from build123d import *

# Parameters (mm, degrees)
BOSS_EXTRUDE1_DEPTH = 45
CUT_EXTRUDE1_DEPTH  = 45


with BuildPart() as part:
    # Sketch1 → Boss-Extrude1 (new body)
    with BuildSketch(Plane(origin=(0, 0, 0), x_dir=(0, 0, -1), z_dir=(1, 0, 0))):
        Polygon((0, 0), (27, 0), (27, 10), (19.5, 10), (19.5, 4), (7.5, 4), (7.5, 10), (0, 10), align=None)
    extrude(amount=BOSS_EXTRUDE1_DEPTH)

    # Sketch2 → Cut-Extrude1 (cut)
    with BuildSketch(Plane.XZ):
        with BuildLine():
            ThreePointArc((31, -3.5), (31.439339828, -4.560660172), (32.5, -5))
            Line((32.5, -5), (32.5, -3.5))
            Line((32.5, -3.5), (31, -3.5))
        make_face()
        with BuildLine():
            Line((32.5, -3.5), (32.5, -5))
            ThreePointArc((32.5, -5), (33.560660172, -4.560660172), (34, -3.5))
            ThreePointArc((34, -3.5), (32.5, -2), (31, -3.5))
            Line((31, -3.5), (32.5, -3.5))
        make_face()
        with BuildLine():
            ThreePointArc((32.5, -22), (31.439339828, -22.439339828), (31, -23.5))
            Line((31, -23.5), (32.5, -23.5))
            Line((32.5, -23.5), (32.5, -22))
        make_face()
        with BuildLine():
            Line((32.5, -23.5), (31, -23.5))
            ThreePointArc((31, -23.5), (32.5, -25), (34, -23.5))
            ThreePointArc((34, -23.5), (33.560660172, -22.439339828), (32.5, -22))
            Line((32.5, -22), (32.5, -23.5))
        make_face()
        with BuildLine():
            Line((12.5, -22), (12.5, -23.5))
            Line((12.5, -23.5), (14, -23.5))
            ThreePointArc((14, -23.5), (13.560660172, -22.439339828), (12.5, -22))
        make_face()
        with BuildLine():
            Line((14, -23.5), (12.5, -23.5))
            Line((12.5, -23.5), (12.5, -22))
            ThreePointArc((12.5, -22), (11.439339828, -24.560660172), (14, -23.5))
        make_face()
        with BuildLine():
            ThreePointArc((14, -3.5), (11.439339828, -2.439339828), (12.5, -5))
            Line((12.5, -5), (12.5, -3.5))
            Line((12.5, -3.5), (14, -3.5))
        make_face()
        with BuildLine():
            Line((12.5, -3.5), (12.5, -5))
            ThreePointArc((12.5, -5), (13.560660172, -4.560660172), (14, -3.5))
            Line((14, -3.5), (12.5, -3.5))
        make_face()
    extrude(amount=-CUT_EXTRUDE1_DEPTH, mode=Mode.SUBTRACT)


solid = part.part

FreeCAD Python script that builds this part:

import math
import FreeCAD as App
import Part
import Sketcher
from FreeCAD import Vector
Q = App.Units.Quantity

doc = App.newDocument("Part")
params = doc.addObject("Spreadsheet::Sheet", "Params")
for row, (alias, value) in enumerate([
    ("sketch1_width", "10 mm"),
    ("sketch1_width2", "6 mm"),
    ("sketch1_height", "27 mm"),
    ("sketch1_height2", "12 mm"),
    ("pad1_length", "45 mm"),
    ("sketch2_radius", "1.5 mm"),
    ("pocket1_length", "45 mm"),
], start=1):
    params.set(f"A{row}", alias)
    params.set(f"B{row}", "=" + value)
    params.setAlias(f"B{row}", alias)

body = doc.addObject("PartDesign::Body", "Body")

# Sketch on YZ plane
sketch1 = body.newObject("Sketcher::SketchObject", "Sketch")
sketch1.AttachmentSupport = (doc.getObject("YZ_Plane"), [""])
sketch1.MapMode = "FlatFace"
sketch1.addGeometry(Part.LineSegment(Vector(0, 0, 0), Vector(0, -27, 0)), False)
sketch1.addGeometry(Part.LineSegment(Vector(0, -27, 0), Vector(10, -27, 0)), False)
sketch1.addGeometry(Part.LineSegment(Vector(10, -27, 0), Vector(10, -20, 0)), False)
sketch1.addGeometry(Part.LineSegment(Vector(10, -20, 0), Vector(4, -20, 0)), False)
sketch1.addGeometry(Part.LineSegment(Vector(4, -20, 0), Vector(4, -8, 0)), False)
sketch1.addGeometry(Part.LineSegment(Vector(4, -8, 0), Vector(10, -8, 0)), False)
sketch1.addGeometry(Part.LineSegment(Vector(10, -8, 0), Vector(10, 0, 0)), False)
sketch1.addGeometry(Part.LineSegment(Vector(10, 0, 0), Vector(0, 0, 0)), False)
sketch1.addConstraint(Sketcher.Constraint("Coincident", 0, 2, 1, 1))
sketch1.addConstraint(Sketcher.Constraint("Coincident", 1, 2, 2, 1))
sketch1.addConstraint(Sketcher.Constraint("Coincident", 2, 2, 3, 1))
sketch1.addConstraint(Sketcher.Constraint("Coincident", 3, 2, 4, 1))
sketch1.addConstraint(Sketcher.Constraint("Coincident", 4, 2, 5, 1))
sketch1.addConstraint(Sketcher.Constraint("Coincident", 5, 2, 6, 1))
sketch1.addConstraint(Sketcher.Constraint("Coincident", 6, 2, 7, 1))
sketch1.addConstraint(Sketcher.Constraint("Coincident", 7, 2, 0, 1))
sketch1.addConstraint(Sketcher.Constraint("Vertical", 0))
sketch1.addConstraint(Sketcher.Constraint("Horizontal", 1))
sketch1.addConstraint(Sketcher.Constraint("Vertical", 2))
sketch1.addConstraint(Sketcher.Constraint("Horizontal", 3))
sketch1.addConstraint(Sketcher.Constraint("Vertical", 4))
sketch1.addConstraint(Sketcher.Constraint("Horizontal", 5))
sketch1.addConstraint(Sketcher.Constraint("Vertical", 6))
sketch1.addConstraint(Sketcher.Constraint("Horizontal", 7))
sketch1.addConstraint(Sketcher.Constraint("Coincident", 7, 2, -1, 1))
sketch1.addConstraint(Sketcher.Constraint("Vertical", 2, 2, 5, 2))
sketch1.addConstraint(Sketcher.Constraint("Equal", 2, 6))
sketch1.addConstraint(Sketcher.Constraint("DistanceX", 1, 1, 1, 2, Q("10 mm")))
sketch1.addConstraint(Sketcher.Constraint("DistanceX", 3, 2, 3, 1, Q("6 mm")))
sketch1.addConstraint(Sketcher.Constraint("DistanceY", 0, 2, 0, 1, Q("27 mm")))
sketch1.addConstraint(Sketcher.Constraint("DistanceY", 4, 1, 4, 2, Q("12 mm")))
sketch1.setExpression("Constraints[19]", "Params.sketch1_width")
sketch1.setExpression("Constraints[20]", "Params.sketch1_width2")
sketch1.setExpression("Constraints[21]", "Params.sketch1_height")
sketch1.setExpression("Constraints[22]", "Params.sketch1_height2")
pad1 = body.newObject("PartDesign::Pad", "Pad")
pad1.Profile = sketch1
pad1.setExpression("Length", "Params.pad1_length")

# Sketch on XZ plane
sketch2 = body.newObject("Sketcher::SketchObject", "Sketch001")
sketch2.AttachmentSupport = (doc.getObject("XZ_Plane"), [""])
sketch2.MapMode = "FlatFace"
sketch2.addGeometry(Part.ArcOfCircle(Part.Circle(Vector(32.5, -3.5, 0), Vector(0, 0, 1), 1.5), math.radians(180), math.radians(270)), False)
sketch2.addGeometry(Part.ArcOfCircle(Part.Circle(Vector(32.5, -3.5, 0), Vector(0, 0, 1), 1.5), math.radians(-90), math.radians(0)), False)
sketch2.addGeometry(Part.ArcOfCircle(Part.Circle(Vector(32.5, -3.5, 0), Vector(0, 0, 1), 1.5), math.radians(0), math.radians(180)), False)
sketch2.addGeometry(Part.ArcOfCircle(Part.Circle(Vector(32.5, -23.5, 0), Vector(0, 0, 1), 1.5), math.radians(90), math.radians(180)), False)
sketch2.addGeometry(Part.ArcOfCircle(Part.Circle(Vector(32.5, -23.5, 0), Vector(0, 0, 1), 1.5), math.radians(180), math.radians(360)), False)
sketch2.addGeometry(Part.ArcOfCircle(Part.Circle(Vector(32.5, -23.5, 0), Vector(0, 0, 1), 1.5), math.radians(0), math.radians(90)), False)
sketch2.addGeometry(Part.ArcOfCircle(Part.Circle(Vector(12.5, -23.5, 0), Vector(0, 0, 1), 1.5), math.radians(0), math.radians(90)), False)
sketch2.addGeometry(Part.ArcOfCircle(Part.Circle(Vector(12.5, -23.5, 0), Vector(0, 0, 1), 1.5), math.radians(90), math.radians(360)), False)
sketch2.addGeometry(Part.ArcOfCircle(Part.Circle(Vector(12.5, -3.5, 0), Vector(0, 0, 1), 1.5), math.radians(0), math.radians(270)), False)
sketch2.addGeometry(Part.ArcOfCircle(Part.Circle(Vector(12.5, -3.5, 0), Vector(0, 0, 1), 1.5), math.radians(-90), math.radians(0)), False)
sketch2.addConstraint(Sketcher.Constraint("Tangent", 0, 2, 1, 1))
sketch2.addConstraint(Sketcher.Constraint("Tangent", 1, 2, 2, 1))
sketch2.addConstraint(Sketcher.Constraint("Tangent", 2, 2, 0, 1))
sketch2.addConstraint(Sketcher.Constraint("Tangent", 3, 2, 4, 1))
sketch2.addConstraint(Sketcher.Constraint("Tangent", 4, 2, 5, 1))
sketch2.addConstraint(Sketcher.Constraint("Tangent", 5, 2, 3, 1))
sketch2.addConstraint(Sketcher.Constraint("Tangent", 6, 1, 7, 2))
sketch2.addConstraint(Sketcher.Constraint("Coincident", 7, 1, 6, 2))
sketch2.addConstraint(Sketcher.Constraint("Tangent", 8, 1, 9, 2))
sketch2.addConstraint(Sketcher.Constraint("Coincident", 9, 1, 8, 2))
sketch2.addConstraint(Sketcher.Constraint("Equal", 2, 3))
sketch2.addConstraint(Sketcher.Constraint("Equal", 5, 6))
sketch2.addConstraint(Sketcher.Constraint("Equal", 7, 8))
sketch2.addConstraint(Sketcher.Constraint("Horizontal", 5, 3, 6, 3))
sketch2.addConstraint(Sketcher.Constraint("Horizontal", 2, 3, 8, 3))
sketch2.addConstraint(Sketcher.Constraint("Horizontal", 9, 3, 1, 2))
sketch2.addConstraint(Sketcher.Constraint("Horizontal", 1, 2, 2, 2))
sketch2.addConstraint(Sketcher.Constraint("Horizontal", 7, 3, 3, 2))
sketch2.addConstraint(Sketcher.Constraint("Horizontal", 3, 2, 4, 2))
sketch2.addConstraint(Sketcher.Constraint("Horizontal", 4, 2, 6, 1))
sketch2.addConstraint(Sketcher.Constraint("Horizontal", 2, 2, 8, 1))
sketch2.addConstraint(Sketcher.Constraint("Vertical", 2, 3, 3, 3))
sketch2.addConstraint(Sketcher.Constraint("Vertical", 7, 3, 8, 3))
sketch2.addConstraint(Sketcher.Constraint("Vertical", 5, 3, 0, 2))
sketch2.addConstraint(Sketcher.Constraint("Vertical", 0, 2, 5, 2))
sketch2.addConstraint(Sketcher.Constraint("Vertical", 9, 3, 7, 1))
sketch2.addConstraint(Sketcher.Constraint("Vertical", 7, 1, 9, 1))
sketch2.addConstraint(Sketcher.Constraint("Radius", 0, Q("1.5 mm")))
sketch2.addConstraint(Sketcher.Constraint("DistanceY", 0, 2, -1, 1, Q("5 mm")))
sketch2.addConstraint(Sketcher.Constraint("DistanceX", -1, 1, 1, 2, Q("34 mm")))
sketch2.addConstraint(Sketcher.Constraint("DistanceY", 5, 2, -1, 1, Q("22 mm")))
sketch2.addConstraint(Sketcher.Constraint("DistanceX", -1, 1, 6, 1, Q("14 mm")))
sketch2.setExpression("Constraints[27]", "Params.sketch2_radius")
pocket1 = body.newObject("PartDesign::Pocket", "Pocket")
pocket1.Profile = sketch2
pocket1.setExpression("Length", "Params.pocket1_length")

doc.recompute()
